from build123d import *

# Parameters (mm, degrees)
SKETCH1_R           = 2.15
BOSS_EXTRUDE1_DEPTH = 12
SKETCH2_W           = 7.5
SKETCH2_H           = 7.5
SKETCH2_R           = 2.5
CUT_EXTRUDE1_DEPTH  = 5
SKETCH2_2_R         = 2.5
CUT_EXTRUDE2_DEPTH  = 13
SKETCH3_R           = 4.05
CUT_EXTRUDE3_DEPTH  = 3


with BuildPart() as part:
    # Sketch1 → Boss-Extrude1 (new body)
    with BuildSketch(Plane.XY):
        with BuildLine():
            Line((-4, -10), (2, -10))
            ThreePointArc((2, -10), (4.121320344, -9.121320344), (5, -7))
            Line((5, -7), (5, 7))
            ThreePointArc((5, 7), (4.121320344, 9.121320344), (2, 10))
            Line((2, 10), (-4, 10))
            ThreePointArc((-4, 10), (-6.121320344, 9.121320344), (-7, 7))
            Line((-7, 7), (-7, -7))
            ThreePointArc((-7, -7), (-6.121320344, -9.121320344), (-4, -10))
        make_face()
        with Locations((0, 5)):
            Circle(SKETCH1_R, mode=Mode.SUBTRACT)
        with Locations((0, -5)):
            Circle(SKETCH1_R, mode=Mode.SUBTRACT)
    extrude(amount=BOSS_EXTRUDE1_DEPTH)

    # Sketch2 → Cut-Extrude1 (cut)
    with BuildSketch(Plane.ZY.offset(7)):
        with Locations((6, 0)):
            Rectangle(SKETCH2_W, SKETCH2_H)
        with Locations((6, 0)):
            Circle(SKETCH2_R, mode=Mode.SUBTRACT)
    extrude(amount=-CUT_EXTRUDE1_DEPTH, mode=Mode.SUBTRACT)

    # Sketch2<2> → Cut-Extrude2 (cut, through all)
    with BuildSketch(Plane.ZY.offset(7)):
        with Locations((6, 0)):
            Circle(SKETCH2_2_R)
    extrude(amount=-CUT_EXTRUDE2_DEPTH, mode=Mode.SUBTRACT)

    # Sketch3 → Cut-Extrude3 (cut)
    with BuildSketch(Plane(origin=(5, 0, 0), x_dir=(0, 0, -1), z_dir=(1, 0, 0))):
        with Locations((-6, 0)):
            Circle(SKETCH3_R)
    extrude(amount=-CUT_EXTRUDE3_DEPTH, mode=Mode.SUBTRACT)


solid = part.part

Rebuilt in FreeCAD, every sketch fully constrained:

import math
import FreeCAD as App
import Part
import Sketcher
from FreeCAD import Vector


def add_polygon(sketch, points):
    """Adds a closed chain of lines whose ends are joined by coincident constraints."""
    first, n = sketch.GeometryCount, len(points)
    for a, b in zip(points, points[1:] + points[:1]):
        sketch.addGeometry(Part.LineSegment(App.Vector(*a, 0), App.Vector(*b, 0)), False)
    for i in range(n):
        sketch.addConstraint(Sketcher.Constraint("Coincident", first + i, 2, first + (i + 1) % n, 1))

doc = App.newDocument("Part")
params = doc.addObject("Spreadsheet::Sheet", "Params")
for row, (alias, value) in enumerate([
    ("sketch1_radius", "3 mm"),
    ("sketch1_diameter", "4.3 mm"),
    ("sketch1_width", "6 mm"),
    ("sketch1_height", "14 mm"),
    ("pad1_length", "12 mm"),
    ("sketch2_diameter", "5 mm"),
    ("sketch2_width", "7.5 mm"),
    ("pocket1_length", "5 mm"),
    ("sketch3_diameter", "5 mm"),
    ("sketch4_diameter", "8.1 mm"),
    ("pocket3_length", "3 mm"),
], start=1):
    params.set(f"A{row}", alias)
    params.set(f"B{row}", "=" + value)
    params.setAlias(f"B{row}", alias)

body = doc.addObject("PartDesign::Body", "Body")

sketch1 = doc.addObject("Sketcher::SketchObject", "Sketch")
body.addObject(sketch1)
sketch1.AttachmentSupport = (doc.XY_Plane, [""])
sketch1.MapMode = "FlatFace"
sketch1.addGeometry(Part.LineSegment(Vector(-4, -10, 0), Vector(2, -10, 0)), False)
sketch1.addGeometry(Part.ArcOfCircle(Part.Circle(Vector(2, -7, 0), Vector(0, 0, 1), 3), math.radians(-90), math.radians(0)), False)
sketch1.addGeometry(Part.LineSegment(Vector(5, -7, 0), Vector(5, 7, 0)), False)
sketch1.addGeometry(Part.ArcOfCircle(Part.Circle(Vector(2, 7, 0), Vector(0, 0, 1), 3), math.radians(0), math.radians(90)), False)
sketch1.addGeometry(Part.LineSegment(Vector(2, 10, 0), Vector(-4, 10, 0)), False)
sketch1.addGeometry(Part.ArcOfCircle(Part.Circle(Vector(-4, 7, 0), Vector(0, 0, 1), 3), math.radians(90), math.radians(180)), False)
sketch1.addGeometry(Part.LineSegment(Vector(-7, 7, 0), Vector(-7, -7, 0)), False)
sketch1.addGeometry(Part.ArcOfCircle(Part.Circle(Vector(-4, -7, 0), Vector(0, 0, 1), 3), math.radians(180), math.radians(270)), False)
sketch1.addGeometry(Part.Circle(Vector(0, -5, 0), Vector(0, 0, 1), 2.1), False)
sketch1.addGeometry(Part.Circle(Vector(0, 5, 0), Vector(0, 0, 1), 2.1), False)
sketch1.addConstraint(Sketcher.Constraint("Tangent", 0, 2, 1, 1))
sketch1.addConstraint(Sketcher.Constraint("Tangent", 1, 2, 2, 1))
sketch1.addConstraint(Sketcher.Constraint("Tangent", 2, 2, 3, 1))
sketch1.addConstraint(Sketcher.Constraint("Tangent", 3, 2, 4, 1))
sketch1.addConstraint(Sketcher.Constraint("Tangent", 4, 2, 5, 1))
sketch1.addConstraint(Sketcher.Constraint("Tangent", 5, 2, 6, 1))
sketch1.addConstraint(Sketcher.Constraint("Tangent", 6, 2, 7, 1))
sketch1.addConstraint(Sketcher.Constraint("Tangent", 7, 2, 0, 1))
sketch1.addConstraint(Sketcher.Constraint("Horizontal", 0))
sketch1.addConstraint(Sketcher.Constraint("Vertical", 2))
sketch1.addConstraint(Sketcher.Constraint("Horizontal", 4))
sketch1.addConstraint(Sketcher.Constraint("Vertical", 6))
sketch1.addConstraint(Sketcher.Constraint("Equal", 1, 3))
sketch1.addConstraint(Sketcher.Constraint("Equal", 3, 5))
sketch1.addConstraint(Sketcher.Constraint("Equal", 5, 7))
sketch1.addConstraint(Sketcher.Constraint("Equal", 8, 9))
sketch1.addConstraint(Sketcher.Constraint("Symmetric", 8, 3, 9, 3, -1, 1))
sketch1.addConstraint(Sketcher.Constraint("PointOnObject", 8, 3, -2))
sketch1.addConstraint(Sketcher.Constraint("Radius", 1, 3.0))
sketch1.addConstraint(Sketcher.Constraint("Diameter", 8, 4.3))
sketch1.addConstraint(Sketcher.Constraint("DistanceX", 0, 1, 0, 2, 6.0))
sketch1.addConstraint(Sketcher.Constraint("DistanceY", 2, 1, 2, 2, 14.0))
sketch1.addConstraint(Sketcher.Constraint("DistanceX", -1, 1, 1, 3, 2.0))
sketch1.addConstraint(Sketcher.Constraint("DistanceY", 1, 3, -1, 1, 7.0))
sketch1.addConstraint(Sketcher.Constraint("DistanceY", 8, 3, -1, 1, 5.0))
sketch1.setExpression("Constraints[18]", "Params.sketch1_radius")
sketch1.setExpression("Constraints[19]", "Params.sketch1_diameter")
sketch1.setExpression("Constraints[20]", "Params.sketch1_width")
sketch1.setExpression("Constraints[21]", "Params.sketch1_height")
pad1 = doc.addObject("PartDesign::Pad", "Pad")
body.addObject(pad1)
pad1.Profile = sketch1
pad1.setExpression("Length", "Params.pad1_length")

sketch2 = doc.addObject("Sketcher::SketchObject", "Sketch001")
body.addObject(sketch2)
sketch2.AttachmentSupport = (doc.YZ_Plane, [""])
sketch2.MapMode = "FlatFace"
sketch2.AttachmentOffset = App.Placement(Vector(0, 0, -7), App.Rotation())
add_polygon(sketch2, [(3.8, 2.2), (-3.8, 2.2), (-3.8, 9.8), (3.8, 9.8)])
sketch2.addGeometry(Part.Circle(Vector(0, 6, 0), Vector(0, 0, 1), 2.5), False)
sketch2.addConstraint(Sketcher.Constraint("Horizontal", 0))
sketch2.addConstraint(Sketcher.Constraint("Vertical", 1))
sketch2.addConstraint(Sketcher.Constraint("Horizontal", 2))
sketch2.addConstraint(Sketcher.Constraint("Vertical", 3))
sketch2.addConstraint(Sketcher.Constraint("PointOnObject", 4, 3, -2))
sketch2.addConstraint(Sketcher.Constraint("Equal", 2, 1))
sketch2.addConstraint(Sketcher.Constraint("Diameter", 4, 5.0))
sketch2.addConstraint(Sketcher.Constraint("DistanceX", 0, 2, 0, 1, 7.5))
sketch2.addConstraint(Sketcher.Constraint("DistanceY", -1, 1, 4, 3, 6.0))
sketch2.addConstraint(Sketcher.Constraint("DistanceX", 0, 2, -1, 1, 3.75))
sketch2.addConstraint(Sketcher.Constraint("DistanceY", -1, 1, 0, 2, 2.25))
sketch2.setExpression("Constraints[10]", "Params.sketch2_diameter")
sketch2.setExpression("Constraints[11]", "Params.sketch2_width")
pocket1 = doc.addObject("PartDesign::Pocket", "Pocket")
body.addObject(pocket1)
pocket1.Profile = sketch2
pocket1.setExpression("Length", "Params.pocket1_length")
pocket1.Reversed = True

sketch3 = doc.addObject("Sketcher::SketchObject", "Sketch002")
body.addObject(sketch3)
sketch3.AttachmentSupport = (doc.YZ_Plane, [""])
sketch3.MapMode = "FlatFace"
sketch3.AttachmentOffset = App.Placement(Vector(0, 0, -7), App.Rotation())
sketch3.addGeometry(Part.Circle(Vector(0, 6, 0), Vector(0, 0, 1), 2.5), False)
sketch3.addConstraint(Sketcher.Constraint("PointOnObject", 0, 3, -2))
sketch3.addConstraint(Sketcher.Constraint("Diameter", 0, 5.0))
sketch3.addConstraint(Sketcher.Constraint("DistanceY", -1, 1, 0, 3, 6.0))
sketch3.setExpression("Constraints[1]", "Params.sketch3_diameter")
pocket2 = doc.addObject("PartDesign::Pocket", "Pocket001")
body.addObject(pocket2)
pocket2.Profile = sketch3
pocket2.Type = "ThroughAll"
pocket2.Reversed = True

sketch4 = doc.addObject("Sketcher::SketchObject", "Sketch003")
body.addObject(sketch4)
sketch4.AttachmentSupport = (doc.YZ_Plane, [""])
sketch4.MapMode = "FlatFace"
sketch4.AttachmentOffset = App.Placement(Vector(0, 0, 5), App.Rotation())
sketch4.addGeometry(Part.Circle(Vector(0, 6, 0), Vector(0, 0, 1), 4), False)
sketch4.addConstraint(Sketcher.Constraint("PointOnObject", 0, 3, -2))
sketch4.addConstraint(Sketcher.Constraint("Diameter", 0, 8.1))
sketch4.addConstraint(Sketcher.Constraint("DistanceY", -1, 1, 0, 3, 6.0))
sketch4.setExpression("Constraints[1]", "Params.sketch4_diameter")
pocket3 = doc.addObject("PartDesign::Pocket", "Pocket002")
body.addObject(pocket3)
pocket3.Profile = sketch4
pocket3.setExpression("Length", "Params.pocket3_length")

doc.recompute()
